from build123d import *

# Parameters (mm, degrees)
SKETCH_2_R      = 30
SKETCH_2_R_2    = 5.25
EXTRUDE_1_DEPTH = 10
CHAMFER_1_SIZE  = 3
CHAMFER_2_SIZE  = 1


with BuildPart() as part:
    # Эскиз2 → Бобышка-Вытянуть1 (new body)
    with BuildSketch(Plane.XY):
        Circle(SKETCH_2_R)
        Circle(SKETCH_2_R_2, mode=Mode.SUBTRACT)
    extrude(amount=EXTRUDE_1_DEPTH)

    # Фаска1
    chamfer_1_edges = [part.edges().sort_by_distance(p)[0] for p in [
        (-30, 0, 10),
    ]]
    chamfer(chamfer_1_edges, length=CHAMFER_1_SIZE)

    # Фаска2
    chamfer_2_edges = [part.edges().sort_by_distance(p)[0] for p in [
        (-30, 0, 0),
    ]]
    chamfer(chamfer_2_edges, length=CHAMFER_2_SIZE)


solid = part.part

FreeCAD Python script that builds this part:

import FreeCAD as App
import Part
import Sketcher
Q = App.Units.Quantity


def edges_at(feature, points):
    """Names of the edges that pass closest to the given points."""
    edges = feature.Shape.Edges
    near = lambda p: min(range(len(edges)), key=lambda i: edges[i].distToShape(Part.Vertex(*p))[0])
    return sorted({f"Edge{near(p) + 1}" for p in points})

doc = App.newDocument("Part")
body = doc.addObject("PartDesign::Body", "Body")

# Sketch on XY plane
sketch1 = body.newObject("Sketcher::SketchObject", "Sketch")
sketch1.AttachmentSupport = (doc.getObject("XY_Plane"), [""])
sketch1.MapMode = "FlatFace"
sketch1.addGeometry(Part.Circle(App.Vector(0, 0, 0), App.Vector(0, 0, 1), 30), False)
sketch1.addGeometry(Part.Circle(App.Vector(0, 0, 0), App.Vector(0, 0, 1), 5), False)
sketch1.addConstraint(Sketcher.Constraint("Coincident", 0, 3, -1, 1))
sketch1.addConstraint(Sketcher.Constraint("Coincident", 1, 3, -1, 1))
sketch1.addConstraint(Sketcher.Constraint("Diameter", 0, Q("60 mm")))
sketch1.addConstraint(Sketcher.Constraint("Diameter", 1, Q("10.5 mm")))
pad1 = body.newObject("PartDesign::Pad", "Pad")
pad1.Profile = sketch1
pad1.Length = 10
doc.recompute()

chamfer = body.newObject("PartDesign::Chamfer", "Chamfer")
chamfer.Base = (pad1, edges_at(pad1, [(-30, 0, 10)]))
chamfer.Size = 3
doc.recompute()

chamfer2 = body.newObject("PartDesign::Chamfer", "Chamfer001")
chamfer2.Base = (chamfer, edges_at(chamfer, [(-30, 0, 0)]))
chamfer2.Size = 1

doc.recompute()
